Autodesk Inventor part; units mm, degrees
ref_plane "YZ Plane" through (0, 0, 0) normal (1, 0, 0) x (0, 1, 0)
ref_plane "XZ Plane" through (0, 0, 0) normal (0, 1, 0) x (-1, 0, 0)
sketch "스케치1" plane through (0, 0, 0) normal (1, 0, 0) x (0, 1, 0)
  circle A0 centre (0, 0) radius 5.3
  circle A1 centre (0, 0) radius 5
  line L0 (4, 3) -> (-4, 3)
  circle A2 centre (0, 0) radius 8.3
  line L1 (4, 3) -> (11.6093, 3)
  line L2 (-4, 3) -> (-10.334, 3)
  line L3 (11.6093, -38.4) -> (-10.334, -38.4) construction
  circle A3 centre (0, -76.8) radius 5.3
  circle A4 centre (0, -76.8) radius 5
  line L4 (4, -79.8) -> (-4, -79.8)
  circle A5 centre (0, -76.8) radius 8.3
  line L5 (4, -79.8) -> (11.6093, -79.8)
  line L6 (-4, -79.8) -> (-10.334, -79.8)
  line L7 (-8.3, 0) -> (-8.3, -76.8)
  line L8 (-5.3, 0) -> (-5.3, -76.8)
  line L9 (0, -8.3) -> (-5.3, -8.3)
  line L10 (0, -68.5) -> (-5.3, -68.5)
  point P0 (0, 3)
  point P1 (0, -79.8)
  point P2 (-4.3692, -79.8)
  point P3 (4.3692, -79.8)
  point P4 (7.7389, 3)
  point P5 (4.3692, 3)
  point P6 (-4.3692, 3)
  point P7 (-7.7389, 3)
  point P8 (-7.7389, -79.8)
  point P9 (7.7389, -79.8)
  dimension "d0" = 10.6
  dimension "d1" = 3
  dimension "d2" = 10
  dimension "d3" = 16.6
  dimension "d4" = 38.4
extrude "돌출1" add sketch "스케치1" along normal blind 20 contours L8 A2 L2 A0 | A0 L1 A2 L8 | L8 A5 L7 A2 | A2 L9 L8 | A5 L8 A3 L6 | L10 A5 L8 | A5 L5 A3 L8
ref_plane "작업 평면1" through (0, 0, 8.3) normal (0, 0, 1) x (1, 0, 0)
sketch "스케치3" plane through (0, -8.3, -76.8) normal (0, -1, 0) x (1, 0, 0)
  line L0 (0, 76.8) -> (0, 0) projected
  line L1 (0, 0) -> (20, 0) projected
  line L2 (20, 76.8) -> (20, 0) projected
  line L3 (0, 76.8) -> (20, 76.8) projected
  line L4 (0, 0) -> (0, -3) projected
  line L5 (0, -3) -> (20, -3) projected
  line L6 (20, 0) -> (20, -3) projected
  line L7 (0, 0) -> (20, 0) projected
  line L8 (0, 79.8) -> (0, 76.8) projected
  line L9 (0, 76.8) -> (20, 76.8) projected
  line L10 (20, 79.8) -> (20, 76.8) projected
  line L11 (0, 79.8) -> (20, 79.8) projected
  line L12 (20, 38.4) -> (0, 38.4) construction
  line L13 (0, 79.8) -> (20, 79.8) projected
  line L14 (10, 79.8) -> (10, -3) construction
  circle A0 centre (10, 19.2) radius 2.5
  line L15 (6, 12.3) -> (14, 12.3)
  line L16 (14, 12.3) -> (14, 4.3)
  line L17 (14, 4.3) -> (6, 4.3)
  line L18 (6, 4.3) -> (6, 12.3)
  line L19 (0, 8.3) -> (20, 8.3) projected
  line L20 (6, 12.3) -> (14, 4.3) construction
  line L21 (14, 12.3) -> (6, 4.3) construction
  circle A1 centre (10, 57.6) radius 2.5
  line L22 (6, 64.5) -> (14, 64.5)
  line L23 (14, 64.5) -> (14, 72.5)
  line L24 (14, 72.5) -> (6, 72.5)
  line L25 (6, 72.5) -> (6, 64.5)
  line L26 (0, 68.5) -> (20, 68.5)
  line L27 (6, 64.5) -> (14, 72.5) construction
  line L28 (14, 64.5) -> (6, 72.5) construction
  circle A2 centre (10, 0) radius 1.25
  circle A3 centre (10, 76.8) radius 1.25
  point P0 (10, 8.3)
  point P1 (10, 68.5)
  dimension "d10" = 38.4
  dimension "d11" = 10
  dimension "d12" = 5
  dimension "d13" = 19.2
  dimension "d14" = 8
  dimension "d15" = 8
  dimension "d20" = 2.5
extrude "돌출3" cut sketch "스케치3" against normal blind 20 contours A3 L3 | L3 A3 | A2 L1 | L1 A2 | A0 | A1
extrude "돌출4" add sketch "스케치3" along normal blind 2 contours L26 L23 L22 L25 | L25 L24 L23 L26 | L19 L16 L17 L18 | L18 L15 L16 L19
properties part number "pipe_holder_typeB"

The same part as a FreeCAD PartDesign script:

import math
import FreeCAD as App
import Part
import Sketcher
Q = App.Units.Quantity


def add_polygon(sketch, points):
    """Adds a closed chain of lines whose ends are joined by coincident constraints."""
    first, n = sketch.GeometryCount, len(points)
    for a, b in zip(points, points[1:] + points[:1]):
        sketch.addGeometry(Part.LineSegment(App.Vector(*a, 0), App.Vector(*b, 0)), False)
    for i in range(n):
        sketch.addConstraint(Sketcher.Constraint("Coincident", first + i, 2, first + (i + 1) % n, 1))

doc = App.newDocument("Part")
body = doc.addObject("PartDesign::Body", "Body")

# Sketch on YZ plane
sketch1 = body.newObject("Sketcher::SketchObject", "Sketch")
sketch1.AttachmentSupport = (doc.getObject("YZ_Plane"), [""])
sketch1.MapMode = "FlatFace"
sketch1.addGeometry(Part.ArcOfCircle(Part.Circle(App.Vector(0, 0, 0), App.Vector(0, 0, 1), 8.3), math.radians(159), math.radians(180)), False)
sketch1.addGeometry(Part.LineSegment(App.Vector(-8.3, 0, 0), App.Vector(-8.3, -76.8, 0)), False)
sketch1.addGeometry(Part.ArcOfCircle(Part.Circle(App.Vector(0, -76.8, 0), App.Vector(0, 0, 1), 8.3), math.radians(180), math.radians(201)), False)
sketch1.addGeometry(Part.LineSegment(App.Vector(-7.7, -79.8, 0), App.Vector(-4.4, -79.8, 0)), False)
sketch1.addGeometry(Part.ArcOfCircle(Part.Circle(App.Vector(0, -76.8, 0), App.Vector(0, 0, 1), 5.3), math.radians(-34), math.radians(214)), False)
sketch1.addGeometry(Part.LineSegment(App.Vector(4.4, -79.8, 0), App.Vector(7.7, -79.8, 0)), False)
sketch1.addGeometry(Part.ArcOfCircle(Part.Circle(App.Vector(0, -76.8, 0), App.Vector(0, 0, 1), 8.3), math.radians(-21), math.radians(90)), False)
sketch1.addGeometry(Part.LineSegment(App.Vector(0, -68.5, 0), App.Vector(-5.3, -68.5, 0)), False)
sketch1.addGeometry(Part.LineSegment(App.Vector(-5.3, -68.5, 0), App.Vector(-5.3, -8.3, 0)), False)
sketch1.addGeometry(Part.LineSegment(App.Vector(-5.3, -8.3, 0), App.Vector(0, -8.3, 0)), False)
sketch1.addGeometry(Part.ArcOfCircle(Part.Circle(App.Vector(0, 0, 0), App.Vector(0, 0, 1), 8.3), math.radians(-90), math.radians(21)), False)
sketch1.addGeometry(Part.LineSegment(App.Vector(7.7, 3, 0), App.Vector(4.4, 3, 0)), False)
sketch1.addGeometry(Part.ArcOfCircle(Part.Circle(App.Vector(0, 0, 0), App.Vector(0, 0, 1), 5.3), math.radians(146), math.radians(394)), False)
sketch1.addGeometry(Part.LineSegment(App.Vector(-4.4, 3, 0), App.Vector(-7.7, 3, 0)), False)
sketch1.addConstraint(Sketcher.Constraint("Tangent", 0, 2, 1, 1))
sketch1.addConstraint(Sketcher.Constraint("Tangent", 1, 2, 2, 1))
sketch1.addConstraint(Sketcher.Constraint("Coincident", 2, 2, 3, 1))
sketch1.addConstraint(Sketcher.Constraint("Coincident", 3, 2, 4, 2))
sketch1.addConstraint(Sketcher.Constraint("Coincident", 4, 1, 5, 1))
sketch1.addConstraint(Sketcher.Constraint("Coincident", 5, 2, 6, 1))
sketch1.addConstraint(Sketcher.Constraint("Tangent", 6, 2, 7, 1))
sketch1.addConstraint(Sketcher.Constraint("Coincident", 7, 2, 8, 1))
sketch1.addConstraint(Sketcher.Constraint("Coincident", 8, 2, 9, 1))
sketch1.addConstraint(Sketcher.Constraint("Tangent", 9, 2, 10, 1))
sketch1.addConstraint(Sketcher.Constraint("Coincident", 10, 2, 11, 1))
sketch1.addConstraint(Sketcher.Constraint("Coincident", 11, 2, 12, 2))
sketch1.addConstraint(Sketcher.Constraint("Coincident", 12, 1, 13, 1))
sketch1.addConstraint(Sketcher.Constraint("Coincident", 13, 2, 0, 1))
sketch1.addConstraint(Sketcher.Constraint("Vertical", 1))
sketch1.addConstraint(Sketcher.Constraint("Horizontal", 3))
sketch1.addConstraint(Sketcher.Constraint("Horizontal", 5))
sketch1.addConstraint(Sketcher.Constraint("Horizontal", 7))
sketch1.addConstraint(Sketcher.Constraint("Vertical", 8))
sketch1.addConstraint(Sketcher.Constraint("Horizontal", 9))
sketch1.addConstraint(Sketcher.Constraint("Horizontal", 11))
sketch1.addConstraint(Sketcher.Constraint("Horizontal", 13))
sketch1.addConstraint(Sketcher.Constraint("Coincident", 0, 3, -1, 1))
sketch1.addConstraint(Sketcher.Constraint("Coincident", 10, 3, -1, 1))
sketch1.addConstraint(Sketcher.Constraint("Coincident", 12, 3, -1, 1))
sketch1.addConstraint(Sketcher.Constraint("Coincident", 4, 3, 2, 3))
sketch1.addConstraint(Sketcher.Constraint("Coincident", 6, 3, 2, 3))
sketch1.addConstraint(Sketcher.Constraint("Equal", 0, 2))
sketch1.addConstraint(Sketcher.Constraint("Equal", 2, 6))
sketch1.addConstraint(Sketcher.Constraint("Equal", 6, 10))
sketch1.addConstraint(Sketcher.Constraint("Equal", 4, 12))
sketch1.addConstraint(Sketcher.Constraint("Horizontal", 3, 2, 4, 1))
sketch1.addConstraint(Sketcher.Constraint("Horizontal", 11, 2, 12, 1))
sketch1.addConstraint(Sketcher.Constraint("Vertical", 5, 2, 10, 2))
sketch1.addConstraint(Sketcher.Constraint("Radius", 0, Q("8.3 mm")))
sketch1.addConstraint(Sketcher.Constraint("Radius", 4, Q("5.3 mm")))
sketch1.addConstraint(Sketcher.Constraint("DistanceY", -1, 1, 10, 2, Q("3 mm")))
sketch1.addConstraint(Sketcher.Constraint("DistanceX", 1, 2, 7, 2, Q("3 mm")))
sketch1.addConstraint(Sketcher.Constraint("DistanceY", 1, 2, 1, 1, Q("76.8 mm")))
pad1 = body.newObject("PartDesign::Pad", "Pad")
pad1.Profile = sketch1
pad1.Length = 20

# Sketch on XZ plane
sketch2 = body.newObject("Sketcher::SketchObject", "Sketch001")
sketch2.AttachmentSupport = (doc.getObject("XZ_Plane"), [""])
sketch2.MapMode = "FlatFace"
sketch2.AttachmentOffset = App.Placement(App.Vector(0, 0, 8.3), App.Rotation())
sketch2.addGeometry(Part.Circle(App.Vector(10, 0, 0), App.Vector(0, 0, 1), 1.2), False)
sketch2.addGeometry(Part.Circle(App.Vector(10, -76.8, 0), App.Vector(0, 0, 1), 1.2), False)
sketch2.addGeometry(Part.Circle(App.Vector(10, -57.6, 0), App.Vector(0, 0, 1), 2.5), False)
sketch2.addGeometry(Part.Circle(App.Vector(10, -19.2, 0), App.Vector(0, 0, 1), 2.5), False)
sketch2.addConstraint(Sketcher.Constraint("Equal", 0, 1))
sketch2.addConstraint(Sketcher.Constraint("Equal", 2, 3))
sketch2.addConstraint(Sketcher.Constraint("PointOnObject", 0, 3, -1))
sketch2.addConstraint(Sketcher.Constraint("Vertical", 0, 3, 1, 3))
sketch2.addConstraint(Sketcher.Constraint("Vertical", 1, 3, 2, 3))
sketch2.addConstraint(Sketcher.Constraint("Vertical", 2, 3, 3, 3))
sketch2.addConstraint(Sketcher.Constraint("Diameter", 2, Q("5 mm")))
sketch2.addConstraint(Sketcher.Constraint("Diameter", 0, Q("2.5 mm")))
sketch2.addConstraint(Sketcher.Constraint("DistanceX", -1, 1, 0, 3, Q("10 mm")))
sketch2.addConstraint(Sketcher.Constraint("DistanceY", 3, 3, -1, 1, Q("19.2 mm")))
sketch2.addConstraint(Sketcher.Constraint("DistanceY", 1, 3, 2, 3, Q("19.2 mm")))
sketch2.addConstraint(Sketcher.Constraint("DistanceY", 2, 3, 3, 3, Q("38.4 mm")))
pocket1 = body.newObject("PartDesign::Pocket", "Pocket")
pocket1.Profile = sketch2
pocket1.Length = 20

# Sketch on XZ plane
sketch3 = body.newObject("Sketcher::SketchObject", "Sketch002")
sketch3.AttachmentSupport = (doc.getObject("XZ_Plane"), [""])
sketch3.MapMode = "FlatFace"
sketch3.AttachmentOffset = App.Placement(App.Vector(0, 0, 8.3), App.Rotation())
add_polygon(sketch3, [(14, -12), (14, -4), (6, -4), (6, -12)])  # lines 0-3
add_polygon(sketch3, [(14, -72), (14, -64), (6, -64), (6, -72)])  # lines 4-7
sketch3.addConstraint(Sketcher.Constraint("Vertical", 0))
sketch3.addConstraint(Sketcher.Constraint("Horizontal", 1))
sketch3.addConstraint(Sketcher.Constraint("Vertical", 2))
sketch3.addConstraint(Sketcher.Constraint("Horizontal", 3))
sketch3.addConstraint(Sketcher.Constraint("Vertical", 4))
sketch3.addConstraint(Sketcher.Constraint("Horizontal", 5))
sketch3.addConstraint(Sketcher.Constraint("Vertical", 6))
sketch3.addConstraint(Sketcher.Constraint("Horizontal", 7))
sketch3.addConstraint(Sketcher.Constraint("Vertical", 3, 2, 4, 2))
sketch3.addConstraint(Sketcher.Constraint("Vertical", 2, 2, 5, 2))
sketch3.addConstraint(Sketcher.Constraint("Equal", 7, 0))
sketch3.addConstraint(Sketcher.Constraint("Equal", 2, 4))
sketch3.addConstraint(Sketcher.Constraint("DistanceX", 1, 2, 1, 1, Q("8 mm")))
sketch3.addConstraint(Sketcher.Constraint("DistanceX", -1, 1, 0, 2, Q("14 mm")))
sketch3.addConstraint(Sketcher.Constraint("DistanceY", 0, 2, -1, 1, Q("4.3 mm")))
sketch3.addConstraint(Sketcher.Constraint("DistanceY", 4, 2, -1, 1, Q("64.5 mm")))
pad2 = body.newObject("PartDesign::Pad", "Pad001")
pad2.Profile = sketch3
pad2.Length = 2

doc.recompute()
